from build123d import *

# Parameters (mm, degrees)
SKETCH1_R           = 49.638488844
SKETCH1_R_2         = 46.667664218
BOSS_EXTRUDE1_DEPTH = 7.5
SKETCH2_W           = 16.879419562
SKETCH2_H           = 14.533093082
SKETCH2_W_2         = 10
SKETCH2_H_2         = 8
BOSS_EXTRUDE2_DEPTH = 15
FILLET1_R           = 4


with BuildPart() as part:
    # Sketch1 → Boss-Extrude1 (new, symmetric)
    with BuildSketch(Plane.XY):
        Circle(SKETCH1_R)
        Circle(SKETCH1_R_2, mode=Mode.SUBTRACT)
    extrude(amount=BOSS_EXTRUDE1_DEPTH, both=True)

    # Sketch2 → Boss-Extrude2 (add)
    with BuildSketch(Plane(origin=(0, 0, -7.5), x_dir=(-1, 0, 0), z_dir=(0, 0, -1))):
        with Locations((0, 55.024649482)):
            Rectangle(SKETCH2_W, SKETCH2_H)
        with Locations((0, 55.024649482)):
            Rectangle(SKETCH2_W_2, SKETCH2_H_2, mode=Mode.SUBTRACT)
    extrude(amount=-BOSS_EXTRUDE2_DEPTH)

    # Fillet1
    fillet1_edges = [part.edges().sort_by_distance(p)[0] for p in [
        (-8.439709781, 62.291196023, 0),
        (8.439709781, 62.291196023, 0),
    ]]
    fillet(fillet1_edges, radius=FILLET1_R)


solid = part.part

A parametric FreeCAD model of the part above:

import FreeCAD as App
import Part
import Sketcher


def edges_at(feature, points):
    """Names of the edges that pass closest to the given points."""
    edges = feature.Shape.Edges
    near = lambda p: min(range(len(edges)), key=lambda i: edges[i].distToShape(Part.Vertex(*p))[0])
    return sorted({f"Edge{near(p) + 1}" for p in points})

doc = App.newDocument("Part")
body = doc.addObject("PartDesign::Body", "Body")

# Sketch on XY plane
sketch1 = body.newObject("Sketcher::SketchObject", "Sketch")
sketch1.AttachmentSupport = (doc.getObject("XY_Plane"), [""])
sketch1.MapMode = "FlatFace"
sketch1.addGeometry([
    Part.Circle(App.Vector(0, 0, 0), App.Vector(0, 0, 1), 50),
    Part.Circle(App.Vector(0, 0, 0), App.Vector(0, 0, 1), 47),
], False)
sketch1.addConstraint([
    Sketcher.Constraint("Coincident", 0, 3, -1, 1),
    Sketcher.Constraint("Coincident", 1, 3, -1, 1),
    Sketcher.Constraint("Diameter", 1, 93.335328),
    Sketcher.Constraint("Diameter", 0, 99.276978),
])
pad1 = body.newObject("PartDesign::Pad", "Pad")
pad1.Profile = sketch1
pad1.Length = 15
pad1.Midplane = True

# Sketch on XY plane
sketch2 = body.newObject("Sketcher::SketchObject", "Sketch001")
sketch2.AttachmentSupport = (doc.getObject("XY_Plane"), [""])
sketch2.MapMode = "FlatFace"
sketch2.AttachmentOffset = App.Placement(App.Vector(0, 0, -7.5), App.Rotation())
sketch2.addGeometry([
    Part.LineSegment(App.Vector(8, 62, 0), App.Vector(8, 48, 0)),  # 0
    Part.LineSegment(App.Vector(8, 48, 0), App.Vector(-8, 48, 0)),  # 1
    Part.LineSegment(App.Vector(-8, 48, 0), App.Vector(-8, 62, 0)),  # 2
    Part.LineSegment(App.Vector(-8, 62, 0), App.Vector(8, 62, 0)),  # 3
    Part.LineSegment(App.Vector(-5, 51, 0), App.Vector(5, 51, 0)),  # 4
    Part.LineSegment(App.Vector(5, 51, 0), App.Vector(5, 59, 0)),  # 5
    Part.LineSegment(App.Vector(5, 59, 0), App.Vector(-5, 59, 0)),  # 6
    Part.LineSegment(App.Vector(-5, 59, 0), App.Vector(-5, 51, 0)),  # 7
], False)
sketch2.addConstraint([
    Sketcher.Constraint("Coincident", 0, 2, 1, 1),
    Sketcher.Constraint("Coincident", 1, 2, 2, 1),
    Sketcher.Constraint("Coincident", 2, 2, 3, 1),
    Sketcher.Constraint("Coincident", 3, 2, 0, 1),
    Sketcher.Constraint("Coincident", 4, 2, 5, 1),
    Sketcher.Constraint("Coincident", 5, 2, 6, 1),
    Sketcher.Constraint("Coincident", 6, 2, 7, 1),
    Sketcher.Constraint("Coincident", 7, 2, 4, 1),
    Sketcher.Constraint("Vertical", 0),
    Sketcher.Constraint("Horizontal", 1),
    Sketcher.Constraint("Vertical", 2),
    Sketcher.Constraint("Horizontal", 3),
    Sketcher.Constraint("Horizontal", 4),
    Sketcher.Constraint("Vertical", 5),
    Sketcher.Constraint("Horizontal", 6),
    Sketcher.Constraint("Vertical", 7),
    Sketcher.Constraint("DistanceX", 4, 1, 4, 2, 10.0),
    Sketcher.Constraint("DistanceY", 5, 1, 5, 2, 8.0),
    Sketcher.Constraint("DistanceX", -1, 1, 4, 2, 5.0),
    Sketcher.Constraint("DistanceX", 1, 2, 1, 1, 16.87942),
    Sketcher.Constraint("DistanceY", 0, 2, 0, 1, 14.533093),
    Sketcher.Constraint("DistanceX", -1, 1, 0, 2, 8.43971),
    Sketcher.Constraint("DistanceY", -1, 1, 4, 2, 51.024649),
    Sketcher.Constraint("DistanceY", -1, 1, 0, 2, 47.758103),
])
pad2 = body.newObject("PartDesign::Pad", "Pad001")
pad2.Profile = sketch2
pad2.Length = 15
doc.recompute()

fillet = body.newObject("PartDesign::Fillet", "Fillet")
fillet.Base = (pad2, edges_at(pad2, [(-8.44, 62.291, 0), (8.44, 62.291, 0)]))
fillet.Radius = 4

doc.recompute()
